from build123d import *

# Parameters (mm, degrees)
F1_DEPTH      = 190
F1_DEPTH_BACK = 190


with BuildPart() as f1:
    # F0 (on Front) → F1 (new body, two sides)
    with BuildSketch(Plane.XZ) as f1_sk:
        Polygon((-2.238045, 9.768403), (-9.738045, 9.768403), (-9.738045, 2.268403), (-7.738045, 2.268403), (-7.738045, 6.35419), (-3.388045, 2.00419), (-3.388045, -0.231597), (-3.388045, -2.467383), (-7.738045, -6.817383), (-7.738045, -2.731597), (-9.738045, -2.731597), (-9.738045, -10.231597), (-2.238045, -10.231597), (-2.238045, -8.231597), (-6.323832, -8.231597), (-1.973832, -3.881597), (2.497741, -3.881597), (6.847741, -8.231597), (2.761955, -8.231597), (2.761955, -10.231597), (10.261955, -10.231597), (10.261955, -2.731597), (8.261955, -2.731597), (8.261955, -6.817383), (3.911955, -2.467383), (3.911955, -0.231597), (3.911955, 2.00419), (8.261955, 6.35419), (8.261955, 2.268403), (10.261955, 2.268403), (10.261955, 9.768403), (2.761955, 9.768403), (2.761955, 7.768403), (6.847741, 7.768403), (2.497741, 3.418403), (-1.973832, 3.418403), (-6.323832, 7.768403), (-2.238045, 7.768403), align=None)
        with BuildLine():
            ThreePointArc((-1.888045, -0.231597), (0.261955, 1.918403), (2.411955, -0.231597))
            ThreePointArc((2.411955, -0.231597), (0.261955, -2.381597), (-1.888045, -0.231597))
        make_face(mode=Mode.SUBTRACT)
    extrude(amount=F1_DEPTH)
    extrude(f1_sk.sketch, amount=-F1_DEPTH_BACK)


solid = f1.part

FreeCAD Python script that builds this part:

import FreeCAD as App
import Part
import Sketcher
Q = App.Units.Quantity

doc = App.newDocument("Part")
body = doc.addObject("PartDesign::Body", "Body")

sketch1 = doc.addObject("Sketcher::SketchObject", "Sketch")
body.addObject(sketch1)
sketch1.AttachmentSupport = (doc.XZ_Plane, [""])
sketch1.MapMode = "FlatFace"
sketch1.addGeometry(Part.LineSegment(App.Vector(-2.238045, 9.768403, 0), App.Vector(-9.738045, 9.768403, 0)), False)
sketch1.addGeometry(Part.LineSegment(App.Vector(-9.738045, 9.768403, 0), App.Vector(-9.738045, 2.268403, 0)), False)
sketch1.addGeometry(Part.LineSegment(App.Vector(-9.738045, 2.268403, 0), App.Vector(-7.738045, 2.268403, 0)), False)
sketch1.addGeometry(Part.LineSegment(App.Vector(-7.738045, 2.268403, 0), App.Vector(-7.738045, 6.35419, 0)), False)
sketch1.addGeometry(Part.LineSegment(App.Vector(-7.738045, 6.35419, 0), App.Vector(-3.388045, 2.00419, 0)), False)
sketch1.addGeometry(Part.LineSegment(App.Vector(-3.388045, 2.00419, 0), App.Vector(-3.388045, -2.467383, 0)), False)
sketch1.addGeometry(Part.LineSegment(App.Vector(-3.388045, -2.467383, 0), App.Vector(-7.738045, -6.817383, 0)), False)
sketch1.addGeometry(Part.LineSegment(App.Vector(-7.738045, -6.817383, 0), App.Vector(-7.738045, -2.731597, 0)), False)
sketch1.addGeometry(Part.LineSegment(App.Vector(-7.738045, -2.731597, 0), App.Vector(-9.738045, -2.731597, 0)), False)
sketch1.addGeometry(Part.LineSegment(App.Vector(-9.738045, -2.731597, 0), App.Vector(-9.738045, -10.231597, 0)), False)
sketch1.addGeometry(Part.LineSegment(App.Vector(-9.738045, -10.231597, 0), App.Vector(-2.238045, -10.231597, 0)), False)
sketch1.addGeometry(Part.LineSegment(App.Vector(-2.238045, -10.231597, 0), App.Vector(-2.238045, -8.231597, 0)), False)
sketch1.addGeometry(Part.LineSegment(App.Vector(-2.238045, -8.231597, 0), App.Vector(-6.323832, -8.231597, 0)), False)
sketch1.addGeometry(Part.LineSegment(App.Vector(-6.323832, -8.231597, 0), App.Vector(-1.973832, -3.881597, 0)), False)
sketch1.addGeometry(Part.LineSegment(App.Vector(-1.973832, -3.881597, 0), App.Vector(2.497741, -3.881597, 0)), False)
sketch1.addGeometry(Part.LineSegment(App.Vector(2.497741, -3.881597, 0), App.Vector(6.847741, -8.231597, 0)), False)
sketch1.addGeometry(Part.LineSegment(App.Vector(6.847741, -8.231597, 0), App.Vector(2.761955, -8.231597, 0)), False)
sketch1.addGeometry(Part.LineSegment(App.Vector(2.761955, -8.231597, 0), App.Vector(2.761955, -10.231597, 0)), False)
sketch1.addGeometry(Part.LineSegment(App.Vector(2.761955, -10.231597, 0), App.Vector(10.261955, -10.231597, 0)), False)
sketch1.addGeometry(Part.LineSegment(App.Vector(10.261955, -10.231597, 0), App.Vector(10.261955, -2.731597, 0)), False)
sketch1.addGeometry(Part.LineSegment(App.Vector(10.261955, -2.731597, 0), App.Vector(8.261955, -2.731597, 0)), False)
sketch1.addGeometry(Part.LineSegment(App.Vector(8.261955, -2.731597, 0), App.Vector(8.261955, -6.817383, 0)), False)
sketch1.addGeometry(Part.LineSegment(App.Vector(8.261955, -6.817383, 0), App.Vector(3.911955, -2.467383, 0)), False)
sketch1.addGeometry(Part.LineSegment(App.Vector(3.911955, -2.467383, 0), App.Vector(3.911955, 2.00419, 0)), False)
sketch1.addGeometry(Part.LineSegment(App.Vector(3.911955, 2.00419, 0), App.Vector(8.261955, 6.35419, 0)), False)
sketch1.addGeometry(Part.LineSegment(App.Vector(8.261955, 6.35419, 0), App.Vector(8.261955, 2.268403, 0)), False)
sketch1.addGeometry(Part.LineSegment(App.Vector(8.261955, 2.268403, 0), App.Vector(10.261955, 2.268403, 0)), False)
sketch1.addGeometry(Part.LineSegment(App.Vector(10.261955, 2.268403, 0), App.Vector(10.261955, 9.768403, 0)), False)
sketch1.addGeometry(Part.LineSegment(App.Vector(10.261955, 9.768403, 0), App.Vector(2.761955, 9.768403, 0)), False)
sketch1.addGeometry(Part.LineSegment(App.Vector(2.761955, 9.768403, 0), App.Vector(2.761955, 7.768403, 0)), False)
sketch1.addGeometry(Part.LineSegment(App.Vector(2.761955, 7.768403, 0), App.Vector(6.847741, 7.768403, 0)), False)
sketch1.addGeometry(Part.LineSegment(App.Vector(6.847741, 7.768403, 0), App.Vector(2.497741, 3.418403, 0)), False)
sketch1.addGeometry(Part.LineSegment(App.Vector(2.497741, 3.418403, 0), App.Vector(-1.973832, 3.418403, 0)), False)
sketch1.addGeometry(Part.LineSegment(App.Vector(-1.973832, 3.418403, 0), App.Vector(-6.323832, 7.768403, 0)), False)
sketch1.addGeometry(Part.LineSegment(App.Vector(-6.323832, 7.768403, 0), App.Vector(-2.238045, 7.768403, 0)), False)
sketch1.addGeometry(Part.LineSegment(App.Vector(-2.238045, 7.768403, 0), App.Vector(-2.238045, 9.768403, 0)), False)
sketch1.addGeometry(Part.Circle(App.Vector(0.261955, -0.231597, 0), App.Vector(0, 0, 1), 2.15), False)
sketch1.addConstraint(Sketcher.Constraint("Coincident", 0, 2, 1, 1))
sketch1.addConstraint(Sketcher.Constraint("Coincident", 1, 2, 2, 1))
sketch1.addConstraint(Sketcher.Constraint("Coincident", 2, 2, 3, 1))
sketch1.addConstraint(Sketcher.Constraint("Coincident", 3, 2, 4, 1))
sketch1.addConstraint(Sketcher.Constraint("Coincident", 4, 2, 5, 1))
sketch1.addConstraint(Sketcher.Constraint("Coincident", 5, 2, 6, 1))
sketch1.addConstraint(Sketcher.Constraint("Coincident", 6, 2, 7, 1))
sketch1.addConstraint(Sketcher.Constraint("Coincident", 7, 2, 8, 1))
sketch1.addConstraint(Sketcher.Constraint("Coincident", 8, 2, 9, 1))
sketch1.addConstraint(Sketcher.Constraint("Coincident", 9, 2, 10, 1))
sketch1.addConstraint(Sketcher.Constraint("Coincident", 10, 2, 11, 1))
sketch1.addConstraint(Sketcher.Constraint("Coincident", 11, 2, 12, 1))
sketch1.addConstraint(Sketcher.Constraint("Coincident", 12, 2, 13, 1))
sketch1.addConstraint(Sketcher.Constraint("Coincident", 13, 2, 14, 1))
sketch1.addConstraint(Sketcher.Constraint("Coincident", 14, 2, 15, 1))
sketch1.addConstraint(Sketcher.Constraint("Coincident", 15, 2, 16, 1))
sketch1.addConstraint(Sketcher.Constraint("Coincident", 16, 2, 17, 1))
sketch1.addConstraint(Sketcher.Constraint("Coincident", 17, 2, 18, 1))
sketch1.addConstraint(Sketcher.Constraint("Coincident", 18, 2, 19, 1))
sketch1.addConstraint(Sketcher.Constraint("Coincident", 19, 2, 20, 1))
sketch1.addConstraint(Sketcher.Constraint("Coincident", 20, 2, 21, 1))
sketch1.addConstraint(Sketcher.Constraint("Coincident", 21, 2, 22, 1))
sketch1.addConstraint(Sketcher.Constraint("Coincident", 22, 2, 23, 1))
sketch1.addConstraint(Sketcher.Constraint("Coincident", 23, 2, 24, 1))
sketch1.addConstraint(Sketcher.Constraint("Coincident", 24, 2, 25, 1))
sketch1.addConstraint(Sketcher.Constraint("Coincident", 25, 2, 26, 1))
sketch1.addConstraint(Sketcher.Constraint("Coincident", 26, 2, 27, 1))
sketch1.addConstraint(Sketcher.Constraint("Coincident", 27, 2, 28, 1))
sketch1.addConstraint(Sketcher.Constraint("Coincident", 28, 2, 29, 1))
sketch1.addConstraint(Sketcher.Constraint("Coincident", 29, 2, 30, 1))
sketch1.addConstraint(Sketcher.Constraint("Coincident", 30, 2, 31, 1))
sketch1.addConstraint(Sketcher.Constraint("Coincident", 31, 2, 32, 1))
sketch1.addConstraint(Sketcher.Constraint("Coincident", 32, 2, 33, 1))
sketch1.addConstraint(Sketcher.Constraint("Coincident", 33, 2, 34, 1))
sketch1.addConstraint(Sketcher.Constraint("Coincident", 34, 2, 35, 1))
sketch1.addConstraint(Sketcher.Constraint("Coincident", 35, 2, 0, 1))
sketch1.addConstraint(Sketcher.Constraint("Horizontal", 0))
sketch1.addConstraint(Sketcher.Constraint("Vertical", 1))
sketch1.addConstraint(Sketcher.Constraint("Horizontal", 2))
sketch1.addConstraint(Sketcher.Constraint("Vertical", 3))
sketch1.addConstraint(Sketcher.Constraint("Vertical", 5))
sketch1.addConstraint(Sketcher.Constraint("Vertical", 7))
sketch1.addConstraint(Sketcher.Constraint("Horizontal", 8))
sketch1.addConstraint(Sketcher.Constraint("Vertical", 9))
sketch1.addConstraint(Sketcher.Constraint("Horizontal", 10))
sketch1.addConstraint(Sketcher.Constraint("Vertical", 11))
sketch1.addConstraint(Sketcher.Constraint("Horizontal", 12))
sketch1.addConstraint(Sketcher.Constraint("Horizontal", 14))
sketch1.addConstraint(Sketcher.Constraint("Horizontal", 16))
sketch1.addConstraint(Sketcher.Constraint("Vertical", 17))
sketch1.addConstraint(Sketcher.Constraint("Horizontal", 18))
sketch1.addConstraint(Sketcher.Constraint("Vertical", 19))
sketch1.addConstraint(Sketcher.Constraint("Horizontal", 20))
sketch1.addConstraint(Sketcher.Constraint("Vertical", 21))
sketch1.addConstraint(Sketcher.Constraint("Vertical", 23))
sketch1.addConstraint(Sketcher.Constraint("Vertical", 25))
sketch1.addConstraint(Sketcher.Constraint("Horizontal", 26))
sketch1.addConstraint(Sketcher.Constraint("Vertical", 27))
sketch1.addConstraint(Sketcher.Constraint("Horizontal", 28))
sketch1.addConstraint(Sketcher.Constraint("Vertical", 29))
sketch1.addConstraint(Sketcher.Constraint("Horizontal", 30))
sketch1.addConstraint(Sketcher.Constraint("Horizontal", 32))
sketch1.addConstraint(Sketcher.Constraint("Horizontal", 34))
sketch1.addConstraint(Sketcher.Constraint("Vertical", 35))
sketch1.addConstraint(Sketcher.Constraint("Perpendicular", 4, 6))
sketch1.addConstraint(Sketcher.Constraint("Parallel", 6, 13))
sketch1.addConstraint(Sketcher.Constraint("Perpendicular", 13, 15))
sketch1.addConstraint(Sketcher.Constraint("Parallel", 15, 22))
sketch1.addConstraint(Sketcher.Constraint("Perpendicular", 22, 24))
sketch1.addConstraint(Sketcher.Constraint("Parallel", 24, 31))
sketch1.addConstraint(Sketcher.Constraint("Perpendicular", 31, 33))
sketch1.addConstraint(Sketcher.Constraint("Horizontal", 12, 2, 15, 2))
sketch1.addConstraint(Sketcher.Constraint("Horizontal", 10, 2, 17, 2))
sketch1.addConstraint(Sketcher.Constraint("Horizontal", 8, 2, 19, 2))
sketch1.addConstraint(Sketcher.Constraint("Horizontal", 6, 2, 21, 2))
sketch1.addConstraint(Sketcher.Constraint("Horizontal", 5, 2, 22, 2))
sketch1.addConstraint(Sketcher.Constraint("Horizontal", 4, 2, 23, 2))
sketch1.addConstraint(Sketcher.Constraint("Horizontal", 3, 2, 24, 2))
sketch1.addConstraint(Sketcher.Constraint("Horizontal", 2, 2, 25, 2))
sketch1.addConstraint(Sketcher.Constraint("Horizontal", 0, 2, 27, 2))
sketch1.addConstraint(Sketcher.Constraint("Horizontal", 30, 2, 33, 2))
sketch1.addConstraint(Sketcher.Constraint("Vertical", 3, 2, 6, 2))
sketch1.addConstraint(Sketcher.Constraint("Vertical", 1, 2, 8, 2))
sketch1.addConstraint(Sketcher.Constraint("Vertical", 21, 2, 24, 2))
sketch1.addConstraint(Sketcher.Constraint("Vertical", 19, 2, 26, 2))
sketch1.addConstraint(Sketcher.Constraint("Vertical", 17, 2, 28, 2))
sketch1.addConstraint(Sketcher.Constraint("Vertical", 15, 2, 30, 2))
sketch1.addConstraint(Sketcher.Constraint("Vertical", 14, 2, 31, 2))
sketch1.addConstraint(Sketcher.Constraint("Vertical", 13, 2, 32, 2))
sketch1.addConstraint(Sketcher.Constraint("Vertical", 11, 2, 34, 2))
sketch1.addConstraint(Sketcher.Constraint("Equal", 12, 16))
sketch1.addConstraint(Sketcher.Constraint("Equal", 10, 18))
sketch1.addConstraint(Sketcher.Constraint("Equal", 8, 20))
sketch1.addConstraint(Sketcher.Constraint("Equal", 28, 1))
sketch1.addConstraint(Sketcher.Constraint("Equal", 34, 3))
sketch1.addConstraint(Sketcher.Constraint("Equal", 32, 5))
sketch1.addConstraint(Sketcher.Constraint("Equal", 3, 7))
sketch1.addConstraint(Sketcher.Constraint("Equal", 1, 9))
sketch1.addConstraint(Sketcher.Constraint("Equal", 26, 11))
sketch1.addConstraint(Sketcher.Constraint("Equal", 17, 29))
sketch1.addConstraint(Sketcher.Constraint("Equal", 6, 13))
sketch1.addConstraint(Sketcher.Constraint("Diameter", 36, Q("4.3 mm")))
sketch1.addConstraint(Sketcher.Constraint("DistanceX", 2, 1, 2, 2, Q("2 mm")))
sketch1.addConstraint(Sketcher.Constraint("DistanceX", 0, 2, 0, 1, Q("7.5 mm")))
sketch1.addConstraint(Sketcher.Constraint("DistanceX", 0, 2, 36, 3, Q("10 mm")))
sketch1.addConstraint(Sketcher.Constraint("DistanceY", 36, 3, 0, 2, Q("10 mm")))
sketch1.addConstraint(Sketcher.Constraint("DistanceY", 7, 2, 2, 2, Q("5 mm")))
sketch1.addConstraint(Sketcher.Constraint("DistanceX", 4, 2, 23, 2, Q("7.3 mm")))
sketch1.addConstraint(Sketcher.Constraint("DistanceX", 12, 2, 12, 1, Q("4.085787 mm")))
sketch1.addConstraint(Sketcher.Constraint("DistanceY", -1, 1, 3, 2, Q("6.35419 mm")))
sketch1.addConstraint(Sketcher.Constraint("DistanceX", -1, 1, 14, 2, Q("2.497741 mm")))
pad1 = doc.addObject("PartDesign::Pad", "Pad")
body.addObject(pad1)
pad1.Profile = sketch1
pad1.Type = "TwoLengths"
pad1.Length = 190
pad1.Length2 = 190

doc.recompute()
